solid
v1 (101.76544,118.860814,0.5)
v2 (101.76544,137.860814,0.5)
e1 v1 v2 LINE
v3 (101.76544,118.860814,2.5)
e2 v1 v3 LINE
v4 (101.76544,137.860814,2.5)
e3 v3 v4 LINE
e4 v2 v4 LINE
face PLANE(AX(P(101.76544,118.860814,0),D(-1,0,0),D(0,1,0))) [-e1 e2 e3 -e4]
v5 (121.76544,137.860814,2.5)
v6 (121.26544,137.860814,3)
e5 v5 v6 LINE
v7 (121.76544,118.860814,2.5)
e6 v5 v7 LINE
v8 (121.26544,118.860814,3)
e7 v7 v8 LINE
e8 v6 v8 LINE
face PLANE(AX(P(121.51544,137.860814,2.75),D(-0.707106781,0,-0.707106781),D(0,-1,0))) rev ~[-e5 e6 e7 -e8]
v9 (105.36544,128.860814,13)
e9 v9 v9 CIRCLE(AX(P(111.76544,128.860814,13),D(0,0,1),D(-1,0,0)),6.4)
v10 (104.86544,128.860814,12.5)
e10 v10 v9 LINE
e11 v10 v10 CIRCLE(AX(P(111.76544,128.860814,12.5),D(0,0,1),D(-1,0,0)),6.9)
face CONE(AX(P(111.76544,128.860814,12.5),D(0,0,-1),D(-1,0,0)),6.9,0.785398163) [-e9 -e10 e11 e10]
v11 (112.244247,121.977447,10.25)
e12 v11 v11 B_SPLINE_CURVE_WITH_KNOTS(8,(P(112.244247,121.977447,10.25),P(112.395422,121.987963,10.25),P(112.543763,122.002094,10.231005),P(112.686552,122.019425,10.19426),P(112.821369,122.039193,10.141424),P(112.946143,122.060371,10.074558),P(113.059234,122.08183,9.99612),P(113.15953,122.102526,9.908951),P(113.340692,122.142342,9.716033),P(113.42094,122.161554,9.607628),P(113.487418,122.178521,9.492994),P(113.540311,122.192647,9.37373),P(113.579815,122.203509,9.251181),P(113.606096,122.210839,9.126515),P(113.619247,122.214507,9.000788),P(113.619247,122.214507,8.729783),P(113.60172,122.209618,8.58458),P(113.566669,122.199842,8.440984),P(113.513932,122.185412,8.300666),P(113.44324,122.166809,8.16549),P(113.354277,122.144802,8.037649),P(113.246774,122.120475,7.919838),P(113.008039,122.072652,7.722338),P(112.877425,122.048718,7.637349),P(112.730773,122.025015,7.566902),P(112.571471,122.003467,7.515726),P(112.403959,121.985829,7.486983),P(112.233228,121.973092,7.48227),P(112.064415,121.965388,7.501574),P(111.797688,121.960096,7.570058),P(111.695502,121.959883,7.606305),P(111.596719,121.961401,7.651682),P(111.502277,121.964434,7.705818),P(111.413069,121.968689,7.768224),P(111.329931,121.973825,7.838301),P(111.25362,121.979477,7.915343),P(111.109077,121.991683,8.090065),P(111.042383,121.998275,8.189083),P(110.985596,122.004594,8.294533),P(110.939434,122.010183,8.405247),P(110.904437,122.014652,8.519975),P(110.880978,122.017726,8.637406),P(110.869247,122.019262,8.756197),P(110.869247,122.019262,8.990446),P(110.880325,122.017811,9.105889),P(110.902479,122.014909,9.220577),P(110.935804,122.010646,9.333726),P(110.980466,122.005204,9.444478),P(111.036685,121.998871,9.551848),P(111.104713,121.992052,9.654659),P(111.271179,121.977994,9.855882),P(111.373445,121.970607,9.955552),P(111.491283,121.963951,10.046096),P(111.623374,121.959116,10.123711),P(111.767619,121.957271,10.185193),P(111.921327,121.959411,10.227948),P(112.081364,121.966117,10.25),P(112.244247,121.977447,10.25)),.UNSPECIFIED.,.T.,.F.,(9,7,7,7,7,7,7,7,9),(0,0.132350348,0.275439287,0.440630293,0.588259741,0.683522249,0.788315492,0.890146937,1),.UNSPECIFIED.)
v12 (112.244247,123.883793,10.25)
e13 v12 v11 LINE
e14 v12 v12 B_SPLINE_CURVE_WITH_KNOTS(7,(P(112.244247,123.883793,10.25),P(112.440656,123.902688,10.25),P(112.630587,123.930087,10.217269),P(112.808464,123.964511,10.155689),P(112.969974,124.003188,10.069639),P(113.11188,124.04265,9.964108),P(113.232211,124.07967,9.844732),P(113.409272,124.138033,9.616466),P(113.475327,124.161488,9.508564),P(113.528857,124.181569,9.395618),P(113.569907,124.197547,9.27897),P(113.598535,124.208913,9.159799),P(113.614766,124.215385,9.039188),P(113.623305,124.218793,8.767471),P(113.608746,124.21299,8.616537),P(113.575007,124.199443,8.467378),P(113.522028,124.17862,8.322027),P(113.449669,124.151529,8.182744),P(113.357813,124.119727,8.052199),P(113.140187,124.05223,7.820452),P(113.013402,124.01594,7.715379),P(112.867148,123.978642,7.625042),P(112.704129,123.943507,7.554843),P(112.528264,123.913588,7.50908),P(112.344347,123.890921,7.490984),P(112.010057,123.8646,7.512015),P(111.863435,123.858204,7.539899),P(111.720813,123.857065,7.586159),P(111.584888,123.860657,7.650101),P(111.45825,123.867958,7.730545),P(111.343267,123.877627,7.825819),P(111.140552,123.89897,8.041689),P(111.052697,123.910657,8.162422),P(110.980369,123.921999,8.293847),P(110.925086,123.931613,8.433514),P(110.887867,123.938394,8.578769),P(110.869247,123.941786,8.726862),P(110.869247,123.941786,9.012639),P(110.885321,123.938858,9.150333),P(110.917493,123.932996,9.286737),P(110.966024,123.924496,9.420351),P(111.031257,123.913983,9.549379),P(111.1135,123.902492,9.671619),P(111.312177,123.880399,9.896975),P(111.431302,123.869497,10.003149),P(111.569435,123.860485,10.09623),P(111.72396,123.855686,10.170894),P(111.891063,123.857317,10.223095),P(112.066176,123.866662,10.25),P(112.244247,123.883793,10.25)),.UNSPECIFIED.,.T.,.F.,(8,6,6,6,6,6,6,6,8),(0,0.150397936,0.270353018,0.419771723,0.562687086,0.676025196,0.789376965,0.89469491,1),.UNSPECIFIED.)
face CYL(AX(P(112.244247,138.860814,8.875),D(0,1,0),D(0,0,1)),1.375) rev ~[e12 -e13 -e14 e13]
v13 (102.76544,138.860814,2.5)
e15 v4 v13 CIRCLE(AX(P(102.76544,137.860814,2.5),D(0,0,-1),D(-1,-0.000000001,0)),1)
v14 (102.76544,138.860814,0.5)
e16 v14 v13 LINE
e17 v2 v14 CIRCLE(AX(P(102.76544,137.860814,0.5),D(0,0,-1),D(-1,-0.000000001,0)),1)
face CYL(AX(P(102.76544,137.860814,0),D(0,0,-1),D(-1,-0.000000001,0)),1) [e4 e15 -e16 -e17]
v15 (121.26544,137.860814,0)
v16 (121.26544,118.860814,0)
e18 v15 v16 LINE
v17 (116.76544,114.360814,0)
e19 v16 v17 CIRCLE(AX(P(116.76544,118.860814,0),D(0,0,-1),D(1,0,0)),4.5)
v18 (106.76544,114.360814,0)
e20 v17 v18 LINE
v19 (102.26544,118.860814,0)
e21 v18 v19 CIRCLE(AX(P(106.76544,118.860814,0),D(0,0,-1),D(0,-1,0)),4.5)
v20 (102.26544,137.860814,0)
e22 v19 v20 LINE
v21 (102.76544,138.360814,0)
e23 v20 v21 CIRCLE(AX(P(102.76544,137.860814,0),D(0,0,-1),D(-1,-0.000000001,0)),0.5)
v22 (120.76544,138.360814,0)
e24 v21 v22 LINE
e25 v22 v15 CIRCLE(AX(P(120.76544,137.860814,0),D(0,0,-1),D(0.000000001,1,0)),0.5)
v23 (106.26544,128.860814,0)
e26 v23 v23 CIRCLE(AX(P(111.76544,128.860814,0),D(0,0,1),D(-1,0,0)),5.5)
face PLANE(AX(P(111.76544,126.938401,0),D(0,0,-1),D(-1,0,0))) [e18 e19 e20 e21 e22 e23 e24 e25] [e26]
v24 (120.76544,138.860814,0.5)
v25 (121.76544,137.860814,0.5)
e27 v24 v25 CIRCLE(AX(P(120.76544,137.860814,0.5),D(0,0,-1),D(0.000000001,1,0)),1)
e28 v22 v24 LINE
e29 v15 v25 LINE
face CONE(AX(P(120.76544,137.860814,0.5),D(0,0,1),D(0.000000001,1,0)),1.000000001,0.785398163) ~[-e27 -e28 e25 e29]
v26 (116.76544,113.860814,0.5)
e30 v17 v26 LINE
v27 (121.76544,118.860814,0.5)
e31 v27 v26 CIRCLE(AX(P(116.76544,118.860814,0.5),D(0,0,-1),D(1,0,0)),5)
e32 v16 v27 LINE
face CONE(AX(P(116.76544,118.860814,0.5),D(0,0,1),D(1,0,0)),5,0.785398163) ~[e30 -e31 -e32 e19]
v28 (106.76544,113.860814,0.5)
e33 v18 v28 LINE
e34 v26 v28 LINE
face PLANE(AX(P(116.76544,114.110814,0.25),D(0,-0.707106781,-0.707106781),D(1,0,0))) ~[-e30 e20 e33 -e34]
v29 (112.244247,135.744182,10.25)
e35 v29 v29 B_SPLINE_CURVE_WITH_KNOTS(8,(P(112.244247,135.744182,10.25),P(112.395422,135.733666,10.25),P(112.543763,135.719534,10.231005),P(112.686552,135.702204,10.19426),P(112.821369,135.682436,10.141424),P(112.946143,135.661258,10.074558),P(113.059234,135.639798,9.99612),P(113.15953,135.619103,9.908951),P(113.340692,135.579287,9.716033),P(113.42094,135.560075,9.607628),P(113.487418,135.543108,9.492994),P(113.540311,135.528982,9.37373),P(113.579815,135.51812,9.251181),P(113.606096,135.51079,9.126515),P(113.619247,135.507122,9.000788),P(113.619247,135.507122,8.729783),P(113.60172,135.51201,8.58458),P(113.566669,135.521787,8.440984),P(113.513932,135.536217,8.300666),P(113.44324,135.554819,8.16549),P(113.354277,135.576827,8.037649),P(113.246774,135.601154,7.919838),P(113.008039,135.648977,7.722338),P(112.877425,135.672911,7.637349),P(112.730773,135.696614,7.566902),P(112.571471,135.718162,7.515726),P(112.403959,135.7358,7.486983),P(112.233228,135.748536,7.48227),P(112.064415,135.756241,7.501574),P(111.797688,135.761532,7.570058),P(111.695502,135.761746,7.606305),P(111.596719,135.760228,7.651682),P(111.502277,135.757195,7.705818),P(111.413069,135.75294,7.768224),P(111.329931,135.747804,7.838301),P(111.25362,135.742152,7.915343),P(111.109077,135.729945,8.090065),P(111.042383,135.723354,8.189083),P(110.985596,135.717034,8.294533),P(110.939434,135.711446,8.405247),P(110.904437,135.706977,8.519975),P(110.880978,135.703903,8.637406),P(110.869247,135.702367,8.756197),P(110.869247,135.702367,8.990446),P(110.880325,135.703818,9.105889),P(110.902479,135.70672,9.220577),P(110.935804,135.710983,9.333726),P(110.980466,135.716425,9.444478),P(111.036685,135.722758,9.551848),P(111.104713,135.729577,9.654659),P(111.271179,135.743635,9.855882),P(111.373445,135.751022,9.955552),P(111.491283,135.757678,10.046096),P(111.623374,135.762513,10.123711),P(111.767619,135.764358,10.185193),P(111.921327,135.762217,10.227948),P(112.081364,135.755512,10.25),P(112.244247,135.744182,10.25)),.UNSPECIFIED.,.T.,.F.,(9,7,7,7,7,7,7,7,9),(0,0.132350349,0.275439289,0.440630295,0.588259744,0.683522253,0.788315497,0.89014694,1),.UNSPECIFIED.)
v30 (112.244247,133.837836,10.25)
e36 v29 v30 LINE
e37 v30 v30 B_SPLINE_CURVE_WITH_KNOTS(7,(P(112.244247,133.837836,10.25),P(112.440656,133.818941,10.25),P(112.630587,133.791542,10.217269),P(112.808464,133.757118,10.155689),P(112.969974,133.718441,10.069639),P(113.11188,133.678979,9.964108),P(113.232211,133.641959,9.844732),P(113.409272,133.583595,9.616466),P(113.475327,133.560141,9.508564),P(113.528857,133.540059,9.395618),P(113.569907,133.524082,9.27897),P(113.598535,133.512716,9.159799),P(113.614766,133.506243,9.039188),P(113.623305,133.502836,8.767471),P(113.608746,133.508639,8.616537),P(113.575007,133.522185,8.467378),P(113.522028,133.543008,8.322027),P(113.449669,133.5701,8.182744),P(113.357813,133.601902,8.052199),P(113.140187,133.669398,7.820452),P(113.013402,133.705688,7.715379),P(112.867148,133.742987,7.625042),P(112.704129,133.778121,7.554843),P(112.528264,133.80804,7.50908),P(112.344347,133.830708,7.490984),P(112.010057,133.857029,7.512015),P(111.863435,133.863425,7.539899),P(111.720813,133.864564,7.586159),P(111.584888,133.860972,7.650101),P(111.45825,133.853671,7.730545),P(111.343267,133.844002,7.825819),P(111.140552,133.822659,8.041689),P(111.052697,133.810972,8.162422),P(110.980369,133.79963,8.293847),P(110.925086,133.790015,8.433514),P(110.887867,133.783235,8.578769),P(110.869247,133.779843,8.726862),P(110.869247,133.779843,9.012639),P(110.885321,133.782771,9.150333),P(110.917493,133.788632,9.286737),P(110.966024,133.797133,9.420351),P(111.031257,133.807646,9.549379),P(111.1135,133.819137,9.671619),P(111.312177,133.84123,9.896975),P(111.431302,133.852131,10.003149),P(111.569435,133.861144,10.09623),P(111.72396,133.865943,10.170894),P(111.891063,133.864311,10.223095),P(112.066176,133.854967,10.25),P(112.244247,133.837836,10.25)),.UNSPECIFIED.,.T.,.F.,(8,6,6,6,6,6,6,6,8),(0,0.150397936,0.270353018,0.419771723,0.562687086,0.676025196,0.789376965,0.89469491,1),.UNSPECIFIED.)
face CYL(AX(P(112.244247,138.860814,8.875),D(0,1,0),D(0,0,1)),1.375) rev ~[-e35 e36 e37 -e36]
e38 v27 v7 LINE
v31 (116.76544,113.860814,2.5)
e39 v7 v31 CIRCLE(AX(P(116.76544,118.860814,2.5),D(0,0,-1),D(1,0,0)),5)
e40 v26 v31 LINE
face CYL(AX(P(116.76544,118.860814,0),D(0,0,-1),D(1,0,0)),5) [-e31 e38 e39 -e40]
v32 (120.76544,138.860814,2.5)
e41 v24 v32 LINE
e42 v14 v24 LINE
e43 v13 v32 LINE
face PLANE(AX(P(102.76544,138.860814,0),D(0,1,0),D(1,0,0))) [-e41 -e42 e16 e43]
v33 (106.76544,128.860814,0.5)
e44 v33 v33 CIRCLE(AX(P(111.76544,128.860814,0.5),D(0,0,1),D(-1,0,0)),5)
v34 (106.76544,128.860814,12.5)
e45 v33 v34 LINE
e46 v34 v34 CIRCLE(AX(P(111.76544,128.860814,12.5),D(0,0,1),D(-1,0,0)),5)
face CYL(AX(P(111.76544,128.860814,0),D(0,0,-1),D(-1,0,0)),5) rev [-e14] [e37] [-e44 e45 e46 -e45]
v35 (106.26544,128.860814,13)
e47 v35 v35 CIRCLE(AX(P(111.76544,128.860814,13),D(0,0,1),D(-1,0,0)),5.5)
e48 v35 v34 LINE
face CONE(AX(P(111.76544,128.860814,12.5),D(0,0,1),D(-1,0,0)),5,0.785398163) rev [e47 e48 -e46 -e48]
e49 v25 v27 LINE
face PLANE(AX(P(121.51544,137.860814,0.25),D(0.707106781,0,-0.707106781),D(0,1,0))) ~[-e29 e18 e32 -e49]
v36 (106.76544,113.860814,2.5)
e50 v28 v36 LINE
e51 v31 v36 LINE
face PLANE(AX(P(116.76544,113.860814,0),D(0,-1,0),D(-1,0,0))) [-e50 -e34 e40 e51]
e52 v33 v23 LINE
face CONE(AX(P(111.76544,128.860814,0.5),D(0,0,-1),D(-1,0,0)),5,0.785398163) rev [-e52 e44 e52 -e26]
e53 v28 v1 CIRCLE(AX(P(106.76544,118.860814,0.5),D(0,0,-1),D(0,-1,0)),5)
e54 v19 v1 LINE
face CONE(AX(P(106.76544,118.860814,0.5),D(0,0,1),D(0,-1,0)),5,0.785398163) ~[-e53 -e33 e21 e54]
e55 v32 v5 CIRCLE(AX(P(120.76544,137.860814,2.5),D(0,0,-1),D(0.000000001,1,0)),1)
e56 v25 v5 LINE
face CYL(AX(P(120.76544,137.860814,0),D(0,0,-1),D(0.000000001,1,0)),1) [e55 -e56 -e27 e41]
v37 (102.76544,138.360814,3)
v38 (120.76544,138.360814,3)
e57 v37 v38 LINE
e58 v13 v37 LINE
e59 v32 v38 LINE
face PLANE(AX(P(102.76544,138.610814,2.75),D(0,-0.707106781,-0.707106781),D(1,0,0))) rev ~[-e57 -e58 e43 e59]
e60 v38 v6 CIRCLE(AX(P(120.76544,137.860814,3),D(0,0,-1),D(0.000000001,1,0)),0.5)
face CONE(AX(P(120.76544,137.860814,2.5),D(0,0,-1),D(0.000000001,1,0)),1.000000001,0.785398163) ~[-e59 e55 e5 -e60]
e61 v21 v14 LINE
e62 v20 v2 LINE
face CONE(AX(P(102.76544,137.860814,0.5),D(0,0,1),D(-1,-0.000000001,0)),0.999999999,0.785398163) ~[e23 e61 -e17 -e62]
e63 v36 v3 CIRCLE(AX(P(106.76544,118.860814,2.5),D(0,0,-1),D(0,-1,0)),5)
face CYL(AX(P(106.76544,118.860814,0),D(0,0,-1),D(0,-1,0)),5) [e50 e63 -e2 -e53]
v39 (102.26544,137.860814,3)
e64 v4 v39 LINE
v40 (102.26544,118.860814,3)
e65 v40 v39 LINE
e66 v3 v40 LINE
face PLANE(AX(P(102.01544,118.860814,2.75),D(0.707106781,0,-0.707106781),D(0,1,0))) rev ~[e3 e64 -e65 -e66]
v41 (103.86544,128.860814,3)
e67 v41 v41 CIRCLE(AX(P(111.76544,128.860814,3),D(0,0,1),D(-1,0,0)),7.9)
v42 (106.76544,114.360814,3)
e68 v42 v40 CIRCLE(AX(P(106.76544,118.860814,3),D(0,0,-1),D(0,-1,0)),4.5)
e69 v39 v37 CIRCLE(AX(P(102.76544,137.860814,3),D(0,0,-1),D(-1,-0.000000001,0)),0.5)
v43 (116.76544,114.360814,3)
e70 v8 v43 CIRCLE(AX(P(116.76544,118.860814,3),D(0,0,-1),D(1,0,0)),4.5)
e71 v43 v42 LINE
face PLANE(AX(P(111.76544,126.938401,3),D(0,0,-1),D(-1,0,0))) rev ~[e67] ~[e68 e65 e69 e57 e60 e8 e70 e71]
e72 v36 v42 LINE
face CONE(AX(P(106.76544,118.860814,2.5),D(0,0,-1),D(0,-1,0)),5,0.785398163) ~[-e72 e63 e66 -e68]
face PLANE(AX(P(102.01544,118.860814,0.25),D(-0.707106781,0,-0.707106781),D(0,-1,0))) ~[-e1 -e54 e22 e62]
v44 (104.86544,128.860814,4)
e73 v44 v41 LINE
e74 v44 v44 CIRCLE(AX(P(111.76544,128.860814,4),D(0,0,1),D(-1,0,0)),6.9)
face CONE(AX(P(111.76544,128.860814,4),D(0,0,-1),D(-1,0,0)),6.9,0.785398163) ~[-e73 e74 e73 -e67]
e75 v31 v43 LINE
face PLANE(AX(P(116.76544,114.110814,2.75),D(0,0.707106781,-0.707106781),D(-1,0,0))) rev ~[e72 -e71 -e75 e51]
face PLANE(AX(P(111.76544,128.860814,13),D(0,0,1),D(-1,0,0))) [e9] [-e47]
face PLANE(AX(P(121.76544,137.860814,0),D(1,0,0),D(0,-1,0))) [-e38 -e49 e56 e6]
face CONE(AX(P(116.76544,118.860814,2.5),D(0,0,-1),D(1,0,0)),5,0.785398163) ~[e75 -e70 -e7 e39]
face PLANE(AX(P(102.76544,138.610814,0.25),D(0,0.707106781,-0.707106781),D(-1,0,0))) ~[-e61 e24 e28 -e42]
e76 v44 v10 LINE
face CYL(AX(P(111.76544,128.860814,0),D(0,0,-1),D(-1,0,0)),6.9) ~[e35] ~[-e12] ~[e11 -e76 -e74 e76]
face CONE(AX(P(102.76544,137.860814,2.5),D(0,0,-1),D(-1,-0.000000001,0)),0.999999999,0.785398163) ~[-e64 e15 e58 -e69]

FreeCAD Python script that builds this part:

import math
import FreeCAD as App
import Part
import Sketcher
from FreeCAD import Vector
Q = App.Units.Quantity


def edges_at(feature, points):
    """Names of the edges that pass closest to the given points."""
    edges = feature.Shape.Edges
    near = lambda p: min(range(len(edges)), key=lambda i: edges[i].distToShape(Part.Vertex(*p))[0])
    return sorted({f"Edge{near(p) + 1}" for p in points})

doc = App.newDocument("Part")
body = doc.addObject("PartDesign::Body", "Body")

sketch1 = body.newObject("Sketcher::SketchObject", "Sketch")
sketch1.AttachmentSupport = (doc.getObject("XY_Plane"), [""])
sketch1.MapMode = "FlatFace"
sketch1.addGeometry([
    Part.LineSegment(Vector(120.76544, 138.860814, 0), Vector(102.76544, 138.860814, 0)),
    Part.ArcOfCircle(Part.Circle(Vector(102.76544, 137.860814, 0), Vector(0, 0, 1), 1), math.radians(90), math.radians(180)),
    Part.LineSegment(Vector(101.76544, 137.860814, 0), Vector(101.76544, 118.860814, 0)),
    Part.ArcOfCircle(Part.Circle(Vector(106.76544, 118.860814, 0), Vector(0, 0, 1), 5), math.radians(180), math.radians(270)),
    Part.LineSegment(Vector(106.76544, 113.860814, 0), Vector(116.76544, 113.860814, 0)),
    Part.ArcOfCircle(Part.Circle(Vector(116.76544, 118.860814, 0), Vector(0, 0, 1), 5), math.radians(-90), math.radians(0)),
    Part.LineSegment(Vector(121.76544, 118.860814, 0), Vector(121.76544, 137.860814, 0)),
    Part.ArcOfCircle(Part.Circle(Vector(120.76544, 137.860814, 0), Vector(0, 0, 1), 1), math.radians(0), math.radians(90)),
    Part.Circle(Vector(111.76544, 128.860814, 0), Vector(0, 0, 1), 6.9),
], False)
sketch1.addConstraint([
    Sketcher.Constraint("Tangent", 0, 2, 1, 1),
    Sketcher.Constraint("Tangent", 1, 2, 2, 1),
    Sketcher.Constraint("Tangent", 2, 2, 3, 1),
    Sketcher.Constraint("Tangent", 3, 2, 4, 1),
    Sketcher.Constraint("Tangent", 4, 2, 5, 1),
    Sketcher.Constraint("Tangent", 5, 2, 6, 1),
    Sketcher.Constraint("Tangent", 6, 2, 7, 1),
    Sketcher.Constraint("Tangent", 7, 2, 0, 1),
    Sketcher.Constraint("Horizontal", 0),
    Sketcher.Constraint("Vertical", 2),
    Sketcher.Constraint("Horizontal", 4),
    Sketcher.Constraint("Vertical", 6),
    Sketcher.Constraint("Equal", 3, 5),
    Sketcher.Constraint("Equal", 1, 7),
    Sketcher.Constraint("Radius", 1, Q("1 mm")),
    Sketcher.Constraint("Radius", 3, Q("5 mm")),
    Sketcher.Constraint("Diameter", 8, Q("13.8 mm")),
    Sketcher.Constraint("DistanceX", 0, 2, 0, 1, Q("18 mm")),
    Sketcher.Constraint("DistanceY", 2, 2, 2, 1, Q("19 mm")),
    Sketcher.Constraint("DistanceX", 3, 3, 8, 3, Q("5 mm")),
    Sketcher.Constraint("DistanceY", 3, 3, 8, 3, Q("10 mm")),
    Sketcher.Constraint("DistanceX", -1, 1, 1, 3, Q("102.76544 mm")),
    Sketcher.Constraint("DistanceY", -1, 1, 1, 3, Q("137.860814 mm")),
])
pad1 = body.newObject("PartDesign::Pad", "Pad")
pad1.Profile = sketch1
pad1.Length = 3

sketch2 = body.newObject("Sketcher::SketchObject", "Sketch001")
sketch2.AttachmentSupport = (doc.getObject("XY_Plane"), [""])
sketch2.MapMode = "FlatFace"
sketch2.addGeometry([
    Part.Circle(Vector(111.76544, 128.860814, 0), Vector(0, 0, 1), 6.9),
    Part.Circle(Vector(111.76544, 128.860814, 0), Vector(0, 0, 1), 5),
], False)
sketch2.addConstraint([
    Sketcher.Constraint("Coincident", 1, 3, 0, 3),
    Sketcher.Constraint("Diameter", 1, Q("10 mm")),
    Sketcher.Constraint("Diameter", 0, Q("13.8 mm")),
    Sketcher.Constraint("DistanceX", -1, 1, 0, 3, Q("111.76544 mm")),
    Sketcher.Constraint("DistanceY", -1, 1, 0, 3, Q("128.860814 mm")),
])
pad2 = body.newObject("PartDesign::Pad", "Pad001")
pad2.Profile = sketch2
pad2.Length = 13
doc.recompute()

chamfer = body.newObject("PartDesign::Chamfer", "Chamfer")
chamfer.Base = (pad2, edges_at(pad2, [
    (121.473, 138.568, 0),
    (121.765, 128.361, 0),
    (111.765, 138.861, 3),
    (120.301, 115.325, 0),
    (111.765, 113.861, 0),
    (103.23, 115.325, 0),
    (101.765, 128.361, 0),
    (102.058, 138.568, 0),
    (111.765, 138.861, 0),
    (102.058, 138.568, 3),
    (101.765, 128.361, 3),
    (103.23, 115.325, 3),
    (118.665, 128.861, 13),
    (116.765, 128.861, 0),
    (116.765, 128.861, 13),
    (111.765, 113.861, 3),
    (120.301, 115.325, 3),
    (121.765, 128.361, 3),
    (121.473, 138.568, 3),
]))
chamfer.Size = 0.5
doc.recompute()

chamfer2 = body.newObject("PartDesign::Chamfer", "Chamfer001")
chamfer2.Base = (chamfer, edges_at(chamfer, [(118.665, 128.861, 3)]))
chamfer2.Size = 1

sketch3 = body.newObject("Sketcher::SketchObject", "Sketch002")
sketch3.AttachmentSupport = (doc.getObject("XZ_Plane"), [""])
sketch3.MapMode = "FlatFace"
sketch3.AttachmentOffset = App.Placement(Vector(0, 0, -138.860814), App.Rotation())
sketch3.addGeometry(Part.Circle(Vector(112.244247, 8.875, 0), Vector(0, 0, 1), 1.375), False)
sketch3.addConstraint([
    Sketcher.Constraint("Diameter", 0, Q("2.75 mm")),
    Sketcher.Constraint("DistanceY", -1, 1, 0, 3, Q("8.875 mm")),
    Sketcher.Constraint("DistanceX", -1, 1, 0, 3, Q("112.244247 mm")),
])
pocket1 = body.newObject("PartDesign::Pocket", "Pocket")
pocket1.Profile = sketch3
pocket1.Length = 20
pocket1.Reversed = True

doc.recompute()
